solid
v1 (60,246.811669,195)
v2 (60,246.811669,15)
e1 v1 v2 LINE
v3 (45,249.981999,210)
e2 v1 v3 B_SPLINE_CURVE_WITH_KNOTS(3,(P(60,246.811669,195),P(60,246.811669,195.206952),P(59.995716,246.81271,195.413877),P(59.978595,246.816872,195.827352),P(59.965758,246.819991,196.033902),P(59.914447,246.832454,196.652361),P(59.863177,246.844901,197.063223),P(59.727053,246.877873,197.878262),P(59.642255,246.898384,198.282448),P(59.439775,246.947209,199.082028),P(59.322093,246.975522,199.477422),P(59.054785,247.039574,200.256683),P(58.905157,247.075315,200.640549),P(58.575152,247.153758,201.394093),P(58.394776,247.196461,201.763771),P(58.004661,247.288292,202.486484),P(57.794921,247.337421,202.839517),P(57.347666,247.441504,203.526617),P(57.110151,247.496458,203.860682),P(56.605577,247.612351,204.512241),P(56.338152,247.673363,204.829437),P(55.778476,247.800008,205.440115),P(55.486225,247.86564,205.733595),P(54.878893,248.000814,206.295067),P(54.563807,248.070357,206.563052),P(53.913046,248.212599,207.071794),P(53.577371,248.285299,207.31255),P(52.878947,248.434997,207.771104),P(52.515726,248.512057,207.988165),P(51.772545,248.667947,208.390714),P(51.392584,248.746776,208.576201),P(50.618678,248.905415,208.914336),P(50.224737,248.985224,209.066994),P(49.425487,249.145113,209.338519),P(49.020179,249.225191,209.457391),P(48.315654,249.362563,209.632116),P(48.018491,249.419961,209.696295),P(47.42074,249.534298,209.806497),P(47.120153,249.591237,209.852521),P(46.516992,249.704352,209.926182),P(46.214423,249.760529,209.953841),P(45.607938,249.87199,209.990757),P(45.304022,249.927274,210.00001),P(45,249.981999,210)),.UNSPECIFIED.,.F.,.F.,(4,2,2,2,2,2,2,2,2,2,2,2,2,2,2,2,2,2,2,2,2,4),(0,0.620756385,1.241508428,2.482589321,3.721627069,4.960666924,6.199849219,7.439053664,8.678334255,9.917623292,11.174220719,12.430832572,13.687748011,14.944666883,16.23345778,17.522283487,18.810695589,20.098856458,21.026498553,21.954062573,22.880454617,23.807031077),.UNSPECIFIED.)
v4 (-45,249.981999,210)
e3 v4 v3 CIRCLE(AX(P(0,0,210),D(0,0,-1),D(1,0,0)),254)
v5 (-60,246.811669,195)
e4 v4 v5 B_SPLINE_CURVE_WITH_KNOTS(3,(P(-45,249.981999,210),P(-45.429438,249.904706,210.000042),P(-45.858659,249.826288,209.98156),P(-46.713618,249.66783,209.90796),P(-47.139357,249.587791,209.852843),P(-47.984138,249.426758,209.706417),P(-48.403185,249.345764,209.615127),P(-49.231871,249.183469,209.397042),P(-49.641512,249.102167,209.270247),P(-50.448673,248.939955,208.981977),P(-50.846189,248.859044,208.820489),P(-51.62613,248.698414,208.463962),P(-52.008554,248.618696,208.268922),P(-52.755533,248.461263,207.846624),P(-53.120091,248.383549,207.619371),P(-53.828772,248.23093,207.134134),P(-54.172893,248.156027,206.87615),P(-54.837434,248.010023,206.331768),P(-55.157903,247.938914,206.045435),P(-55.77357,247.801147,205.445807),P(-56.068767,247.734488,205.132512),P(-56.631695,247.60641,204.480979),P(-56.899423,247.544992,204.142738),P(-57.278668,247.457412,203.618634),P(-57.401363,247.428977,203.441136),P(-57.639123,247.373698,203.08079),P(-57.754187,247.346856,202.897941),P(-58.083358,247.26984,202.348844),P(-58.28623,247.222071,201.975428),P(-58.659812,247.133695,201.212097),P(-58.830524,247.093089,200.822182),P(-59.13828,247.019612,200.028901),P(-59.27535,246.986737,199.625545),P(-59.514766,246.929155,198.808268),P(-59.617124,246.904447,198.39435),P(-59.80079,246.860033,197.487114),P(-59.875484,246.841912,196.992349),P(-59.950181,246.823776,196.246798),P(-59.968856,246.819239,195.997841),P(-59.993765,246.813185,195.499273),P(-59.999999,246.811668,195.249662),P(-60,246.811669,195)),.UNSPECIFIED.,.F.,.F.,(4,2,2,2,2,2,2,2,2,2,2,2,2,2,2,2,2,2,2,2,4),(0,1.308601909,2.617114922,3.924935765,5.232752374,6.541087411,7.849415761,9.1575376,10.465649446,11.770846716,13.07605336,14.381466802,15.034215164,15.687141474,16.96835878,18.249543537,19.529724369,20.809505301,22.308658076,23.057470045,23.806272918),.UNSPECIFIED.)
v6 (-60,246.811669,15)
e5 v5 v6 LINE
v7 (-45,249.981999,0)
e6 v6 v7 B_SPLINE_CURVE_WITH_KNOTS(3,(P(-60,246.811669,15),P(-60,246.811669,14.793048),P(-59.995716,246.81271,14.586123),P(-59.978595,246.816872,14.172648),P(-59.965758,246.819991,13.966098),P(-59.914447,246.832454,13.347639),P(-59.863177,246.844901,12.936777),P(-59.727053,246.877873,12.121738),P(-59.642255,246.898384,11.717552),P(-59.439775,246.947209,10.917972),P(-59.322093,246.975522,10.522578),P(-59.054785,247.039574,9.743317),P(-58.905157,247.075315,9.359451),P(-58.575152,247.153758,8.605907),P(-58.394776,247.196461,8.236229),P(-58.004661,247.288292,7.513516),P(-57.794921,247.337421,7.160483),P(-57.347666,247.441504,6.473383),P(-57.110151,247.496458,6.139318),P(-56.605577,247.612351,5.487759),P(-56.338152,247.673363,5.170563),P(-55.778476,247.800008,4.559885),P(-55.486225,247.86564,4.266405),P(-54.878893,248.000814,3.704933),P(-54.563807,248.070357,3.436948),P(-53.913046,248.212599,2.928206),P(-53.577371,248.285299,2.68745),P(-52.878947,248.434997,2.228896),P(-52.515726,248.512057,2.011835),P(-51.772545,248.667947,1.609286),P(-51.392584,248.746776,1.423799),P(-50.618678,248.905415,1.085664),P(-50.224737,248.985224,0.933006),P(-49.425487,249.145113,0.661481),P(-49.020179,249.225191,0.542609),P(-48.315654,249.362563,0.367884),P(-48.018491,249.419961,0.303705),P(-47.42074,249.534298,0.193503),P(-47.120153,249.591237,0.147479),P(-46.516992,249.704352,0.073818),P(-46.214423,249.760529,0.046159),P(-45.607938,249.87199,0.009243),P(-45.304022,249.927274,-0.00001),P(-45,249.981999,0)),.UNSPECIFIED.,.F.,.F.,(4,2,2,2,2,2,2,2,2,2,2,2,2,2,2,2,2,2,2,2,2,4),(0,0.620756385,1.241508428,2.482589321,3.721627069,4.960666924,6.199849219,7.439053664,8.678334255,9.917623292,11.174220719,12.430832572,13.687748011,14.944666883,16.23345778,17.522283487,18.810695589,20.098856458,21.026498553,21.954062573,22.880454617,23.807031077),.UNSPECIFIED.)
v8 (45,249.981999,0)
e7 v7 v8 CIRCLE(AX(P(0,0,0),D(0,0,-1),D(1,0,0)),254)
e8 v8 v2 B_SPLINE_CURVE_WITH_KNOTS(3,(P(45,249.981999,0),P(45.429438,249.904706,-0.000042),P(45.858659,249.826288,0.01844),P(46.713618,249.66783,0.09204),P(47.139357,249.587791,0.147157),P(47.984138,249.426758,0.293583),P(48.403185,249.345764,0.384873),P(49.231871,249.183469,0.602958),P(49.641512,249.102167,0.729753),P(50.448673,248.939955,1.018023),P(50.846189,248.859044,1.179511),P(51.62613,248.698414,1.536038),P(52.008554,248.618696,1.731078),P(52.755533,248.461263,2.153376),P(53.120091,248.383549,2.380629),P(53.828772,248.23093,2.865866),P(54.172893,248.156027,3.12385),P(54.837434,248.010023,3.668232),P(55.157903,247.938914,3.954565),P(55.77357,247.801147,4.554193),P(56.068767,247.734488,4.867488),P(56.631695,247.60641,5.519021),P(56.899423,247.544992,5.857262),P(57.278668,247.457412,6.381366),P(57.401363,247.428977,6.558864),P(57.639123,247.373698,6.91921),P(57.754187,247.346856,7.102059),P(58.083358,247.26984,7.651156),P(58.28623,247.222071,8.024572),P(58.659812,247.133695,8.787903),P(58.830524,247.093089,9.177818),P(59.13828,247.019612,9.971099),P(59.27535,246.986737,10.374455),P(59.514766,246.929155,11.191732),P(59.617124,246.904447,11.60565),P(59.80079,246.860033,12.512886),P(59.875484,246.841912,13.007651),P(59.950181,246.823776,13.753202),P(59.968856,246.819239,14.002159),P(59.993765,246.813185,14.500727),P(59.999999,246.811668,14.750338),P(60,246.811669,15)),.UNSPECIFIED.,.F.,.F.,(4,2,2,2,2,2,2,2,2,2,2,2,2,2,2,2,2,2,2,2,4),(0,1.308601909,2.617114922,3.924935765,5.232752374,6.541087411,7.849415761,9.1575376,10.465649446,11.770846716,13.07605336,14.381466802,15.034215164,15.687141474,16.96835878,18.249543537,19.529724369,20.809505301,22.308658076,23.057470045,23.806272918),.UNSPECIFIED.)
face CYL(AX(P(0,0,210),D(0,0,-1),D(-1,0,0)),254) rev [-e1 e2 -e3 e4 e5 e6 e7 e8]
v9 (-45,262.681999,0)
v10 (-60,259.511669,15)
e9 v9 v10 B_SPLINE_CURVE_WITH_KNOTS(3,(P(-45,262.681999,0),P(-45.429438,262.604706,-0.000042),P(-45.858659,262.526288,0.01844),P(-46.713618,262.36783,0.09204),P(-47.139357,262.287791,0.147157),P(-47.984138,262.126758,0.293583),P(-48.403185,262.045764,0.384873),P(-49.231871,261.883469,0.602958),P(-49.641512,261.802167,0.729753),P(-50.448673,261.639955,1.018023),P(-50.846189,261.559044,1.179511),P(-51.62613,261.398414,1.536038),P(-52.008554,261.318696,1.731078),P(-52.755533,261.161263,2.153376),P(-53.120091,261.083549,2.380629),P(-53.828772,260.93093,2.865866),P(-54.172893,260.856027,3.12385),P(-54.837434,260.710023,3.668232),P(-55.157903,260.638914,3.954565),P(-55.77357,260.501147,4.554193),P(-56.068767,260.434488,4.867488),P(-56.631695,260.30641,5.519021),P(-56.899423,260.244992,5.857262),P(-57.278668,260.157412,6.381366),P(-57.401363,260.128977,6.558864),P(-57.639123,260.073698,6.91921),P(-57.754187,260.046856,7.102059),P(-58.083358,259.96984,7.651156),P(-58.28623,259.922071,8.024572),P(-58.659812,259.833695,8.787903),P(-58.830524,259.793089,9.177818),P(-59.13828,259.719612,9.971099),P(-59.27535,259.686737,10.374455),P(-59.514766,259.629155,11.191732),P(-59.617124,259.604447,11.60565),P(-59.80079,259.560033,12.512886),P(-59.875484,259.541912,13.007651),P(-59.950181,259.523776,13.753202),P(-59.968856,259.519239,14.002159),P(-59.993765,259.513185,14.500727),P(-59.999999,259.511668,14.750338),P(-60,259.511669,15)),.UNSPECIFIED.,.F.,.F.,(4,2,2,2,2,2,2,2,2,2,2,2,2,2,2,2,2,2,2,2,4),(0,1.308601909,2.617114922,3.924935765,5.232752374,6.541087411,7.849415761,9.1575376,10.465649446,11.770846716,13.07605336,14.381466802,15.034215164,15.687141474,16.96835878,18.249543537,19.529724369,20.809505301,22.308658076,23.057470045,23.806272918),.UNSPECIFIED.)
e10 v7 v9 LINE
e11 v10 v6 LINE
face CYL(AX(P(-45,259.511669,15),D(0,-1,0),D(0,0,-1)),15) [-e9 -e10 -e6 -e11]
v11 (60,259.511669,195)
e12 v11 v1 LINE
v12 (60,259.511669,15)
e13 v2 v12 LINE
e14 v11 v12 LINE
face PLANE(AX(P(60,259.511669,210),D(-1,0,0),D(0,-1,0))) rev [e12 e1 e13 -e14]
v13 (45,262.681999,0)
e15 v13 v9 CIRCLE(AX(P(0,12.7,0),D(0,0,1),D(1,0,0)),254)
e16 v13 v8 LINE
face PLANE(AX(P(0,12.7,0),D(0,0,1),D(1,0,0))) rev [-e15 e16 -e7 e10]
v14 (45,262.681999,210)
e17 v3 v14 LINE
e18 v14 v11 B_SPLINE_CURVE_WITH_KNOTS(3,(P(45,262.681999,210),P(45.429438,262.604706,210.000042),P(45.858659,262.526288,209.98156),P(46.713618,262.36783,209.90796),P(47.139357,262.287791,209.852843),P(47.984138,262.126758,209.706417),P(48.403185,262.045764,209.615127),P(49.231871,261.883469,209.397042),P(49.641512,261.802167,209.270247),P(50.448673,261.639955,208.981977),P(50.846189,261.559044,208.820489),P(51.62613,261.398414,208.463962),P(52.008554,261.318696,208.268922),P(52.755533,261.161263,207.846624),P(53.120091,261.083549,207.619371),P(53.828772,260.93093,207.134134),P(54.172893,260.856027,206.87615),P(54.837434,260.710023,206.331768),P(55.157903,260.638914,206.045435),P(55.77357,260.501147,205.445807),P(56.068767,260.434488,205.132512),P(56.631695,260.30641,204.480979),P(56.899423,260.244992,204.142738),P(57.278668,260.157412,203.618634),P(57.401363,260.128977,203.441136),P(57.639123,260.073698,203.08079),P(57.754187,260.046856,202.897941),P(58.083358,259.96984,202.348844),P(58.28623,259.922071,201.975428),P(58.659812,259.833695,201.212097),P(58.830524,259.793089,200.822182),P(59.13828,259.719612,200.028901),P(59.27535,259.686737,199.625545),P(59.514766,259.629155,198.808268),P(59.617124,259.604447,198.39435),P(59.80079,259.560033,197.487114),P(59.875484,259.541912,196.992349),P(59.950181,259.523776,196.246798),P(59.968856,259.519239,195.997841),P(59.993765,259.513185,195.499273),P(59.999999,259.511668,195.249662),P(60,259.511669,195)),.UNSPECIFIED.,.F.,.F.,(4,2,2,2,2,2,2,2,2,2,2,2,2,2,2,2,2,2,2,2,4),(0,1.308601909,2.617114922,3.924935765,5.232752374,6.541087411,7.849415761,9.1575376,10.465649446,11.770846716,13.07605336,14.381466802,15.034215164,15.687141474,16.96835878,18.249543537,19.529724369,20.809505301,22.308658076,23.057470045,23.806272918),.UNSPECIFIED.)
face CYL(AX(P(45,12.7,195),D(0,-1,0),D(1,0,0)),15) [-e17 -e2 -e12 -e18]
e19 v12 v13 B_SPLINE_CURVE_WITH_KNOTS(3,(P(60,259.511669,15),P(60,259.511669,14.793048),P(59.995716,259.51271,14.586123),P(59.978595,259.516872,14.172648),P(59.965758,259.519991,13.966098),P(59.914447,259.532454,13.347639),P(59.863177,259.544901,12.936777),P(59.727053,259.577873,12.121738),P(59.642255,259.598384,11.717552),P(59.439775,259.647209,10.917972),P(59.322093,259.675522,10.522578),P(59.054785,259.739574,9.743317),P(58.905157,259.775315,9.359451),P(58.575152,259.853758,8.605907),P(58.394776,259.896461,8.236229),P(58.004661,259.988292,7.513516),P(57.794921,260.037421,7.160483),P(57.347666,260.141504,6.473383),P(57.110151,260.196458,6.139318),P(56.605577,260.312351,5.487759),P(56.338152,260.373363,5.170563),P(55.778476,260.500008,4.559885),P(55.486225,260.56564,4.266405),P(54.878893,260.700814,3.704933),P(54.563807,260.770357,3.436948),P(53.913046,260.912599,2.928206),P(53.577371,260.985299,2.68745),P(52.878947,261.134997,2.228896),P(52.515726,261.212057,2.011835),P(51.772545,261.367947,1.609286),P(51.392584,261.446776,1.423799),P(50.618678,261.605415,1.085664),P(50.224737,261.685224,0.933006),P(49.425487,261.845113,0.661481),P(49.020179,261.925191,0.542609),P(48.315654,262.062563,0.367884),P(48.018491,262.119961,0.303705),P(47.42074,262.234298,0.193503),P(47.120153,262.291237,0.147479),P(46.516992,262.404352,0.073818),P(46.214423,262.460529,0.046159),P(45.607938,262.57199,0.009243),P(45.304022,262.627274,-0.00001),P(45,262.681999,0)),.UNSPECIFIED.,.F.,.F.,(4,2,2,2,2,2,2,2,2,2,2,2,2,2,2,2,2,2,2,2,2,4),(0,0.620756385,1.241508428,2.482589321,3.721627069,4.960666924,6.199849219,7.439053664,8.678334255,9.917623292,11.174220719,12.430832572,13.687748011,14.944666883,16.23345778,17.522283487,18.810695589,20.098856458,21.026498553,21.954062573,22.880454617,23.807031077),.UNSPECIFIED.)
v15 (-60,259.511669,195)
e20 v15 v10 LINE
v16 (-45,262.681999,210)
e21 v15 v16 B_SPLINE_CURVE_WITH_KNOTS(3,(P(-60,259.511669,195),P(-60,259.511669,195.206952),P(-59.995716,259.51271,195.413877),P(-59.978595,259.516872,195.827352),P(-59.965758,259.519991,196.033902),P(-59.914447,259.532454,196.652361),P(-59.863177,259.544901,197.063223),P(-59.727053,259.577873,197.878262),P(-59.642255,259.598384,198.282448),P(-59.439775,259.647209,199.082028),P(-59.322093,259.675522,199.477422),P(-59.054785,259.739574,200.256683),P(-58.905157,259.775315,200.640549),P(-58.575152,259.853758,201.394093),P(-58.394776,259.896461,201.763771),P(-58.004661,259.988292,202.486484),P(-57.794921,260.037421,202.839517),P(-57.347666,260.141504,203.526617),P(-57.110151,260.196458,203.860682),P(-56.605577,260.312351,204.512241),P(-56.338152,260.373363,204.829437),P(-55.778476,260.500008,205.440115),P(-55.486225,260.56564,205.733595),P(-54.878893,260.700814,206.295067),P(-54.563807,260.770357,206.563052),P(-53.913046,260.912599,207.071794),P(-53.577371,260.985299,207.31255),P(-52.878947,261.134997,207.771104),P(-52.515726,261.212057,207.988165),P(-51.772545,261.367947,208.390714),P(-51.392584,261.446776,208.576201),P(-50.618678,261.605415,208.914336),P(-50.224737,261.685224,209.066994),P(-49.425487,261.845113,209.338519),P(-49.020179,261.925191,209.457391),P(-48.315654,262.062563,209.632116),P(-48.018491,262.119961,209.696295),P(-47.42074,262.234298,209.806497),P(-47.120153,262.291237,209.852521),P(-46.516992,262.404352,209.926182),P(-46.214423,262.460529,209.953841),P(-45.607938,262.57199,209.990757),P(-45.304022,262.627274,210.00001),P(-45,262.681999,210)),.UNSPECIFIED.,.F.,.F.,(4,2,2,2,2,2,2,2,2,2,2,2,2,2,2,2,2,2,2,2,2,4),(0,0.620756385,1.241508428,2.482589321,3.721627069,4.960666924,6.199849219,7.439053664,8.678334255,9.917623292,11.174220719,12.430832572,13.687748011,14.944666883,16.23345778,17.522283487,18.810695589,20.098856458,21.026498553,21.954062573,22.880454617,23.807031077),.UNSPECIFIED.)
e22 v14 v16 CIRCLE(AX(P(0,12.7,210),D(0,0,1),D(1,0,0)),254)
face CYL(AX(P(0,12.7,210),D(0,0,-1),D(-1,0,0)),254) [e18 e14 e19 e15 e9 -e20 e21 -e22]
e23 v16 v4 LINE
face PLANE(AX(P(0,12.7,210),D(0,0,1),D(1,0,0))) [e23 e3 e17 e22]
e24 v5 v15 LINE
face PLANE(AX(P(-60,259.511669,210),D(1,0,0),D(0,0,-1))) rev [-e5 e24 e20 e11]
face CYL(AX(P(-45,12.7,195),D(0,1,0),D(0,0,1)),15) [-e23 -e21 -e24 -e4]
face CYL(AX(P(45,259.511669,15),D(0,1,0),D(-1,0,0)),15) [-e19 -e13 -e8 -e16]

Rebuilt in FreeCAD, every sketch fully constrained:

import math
import FreeCAD as App
import Part
import Sketcher

V = App.Vector


def edges_at(feature, points):
    """Names of the edges that pass closest to the given points."""
    edges = feature.Shape.Edges
    near = lambda p: min(range(len(edges)), key=lambda i: edges[i].distToShape(Part.Vertex(*p))[0])
    return sorted({f"Edge{near(p) + 1}" for p in points})

doc = App.newDocument("Part")
body = doc.addObject("PartDesign::Body", "Body")

sketch1 = body.newObject("Sketcher::SketchObject", "Sketch")
sketch1.AttachmentSupport = (doc.getObject("XY_Plane"), [""])
sketch1.MapMode = "FlatFace"
sketch1.addGeometry([
    Part.LineSegment(V(-60, 259.511669, 0), V(-60, 246.811669, 0)),
    Part.ArcOfCircle(Part.Circle(V(0, 0, 0), V(0, 0, 1), 254), math.radians(76.336424), math.radians(103.663576)),
    Part.LineSegment(V(60, 246.811669, 0), V(60, 259.511669, 0)),
    Part.ArcOfCircle(Part.Circle(V(0, 12.7, 0), V(0, 0, 1), 254), math.radians(76.336424), math.radians(103.663576)),
], False)
sketch1.addConstraint([
    Sketcher.Constraint("Coincident", 0, 2, 1, 2),
    Sketcher.Constraint("Coincident", 1, 1, 2, 1),
    Sketcher.Constraint("Coincident", 2, 2, 3, 1),
    Sketcher.Constraint("Coincident", 3, 2, 0, 1),
    Sketcher.Constraint("Vertical", 0),
    Sketcher.Constraint("Vertical", 2),
    Sketcher.Constraint("Coincident", 1, 3, -1, 1),
    Sketcher.Constraint("Equal", 1, 3),
    Sketcher.Constraint("Symmetric", 2, 2, 3, 2, -2),
    Sketcher.Constraint("Radius", 1, 254.0),
    Sketcher.Constraint("DistanceY", 0, 2, 0, 1, 12.7),
    Sketcher.Constraint("DistanceX", 0, 2, -1, 1, 60.0),
])
pad1 = body.newObject("PartDesign::Pad", "Pad")
pad1.Profile = sketch1
pad1.Length = 210
doc.recompute()

fillet = body.newObject("PartDesign::Fillet", "Fillet")
fillet.Base = (pad1, edges_at(pad1, [
    (60, 253.162, 210),
    (60, 253.162, 0),
    (-60, 253.162, 0),
    (-60, 253.162, 210),
]))
fillet.Radius = 15

doc.recompute()
